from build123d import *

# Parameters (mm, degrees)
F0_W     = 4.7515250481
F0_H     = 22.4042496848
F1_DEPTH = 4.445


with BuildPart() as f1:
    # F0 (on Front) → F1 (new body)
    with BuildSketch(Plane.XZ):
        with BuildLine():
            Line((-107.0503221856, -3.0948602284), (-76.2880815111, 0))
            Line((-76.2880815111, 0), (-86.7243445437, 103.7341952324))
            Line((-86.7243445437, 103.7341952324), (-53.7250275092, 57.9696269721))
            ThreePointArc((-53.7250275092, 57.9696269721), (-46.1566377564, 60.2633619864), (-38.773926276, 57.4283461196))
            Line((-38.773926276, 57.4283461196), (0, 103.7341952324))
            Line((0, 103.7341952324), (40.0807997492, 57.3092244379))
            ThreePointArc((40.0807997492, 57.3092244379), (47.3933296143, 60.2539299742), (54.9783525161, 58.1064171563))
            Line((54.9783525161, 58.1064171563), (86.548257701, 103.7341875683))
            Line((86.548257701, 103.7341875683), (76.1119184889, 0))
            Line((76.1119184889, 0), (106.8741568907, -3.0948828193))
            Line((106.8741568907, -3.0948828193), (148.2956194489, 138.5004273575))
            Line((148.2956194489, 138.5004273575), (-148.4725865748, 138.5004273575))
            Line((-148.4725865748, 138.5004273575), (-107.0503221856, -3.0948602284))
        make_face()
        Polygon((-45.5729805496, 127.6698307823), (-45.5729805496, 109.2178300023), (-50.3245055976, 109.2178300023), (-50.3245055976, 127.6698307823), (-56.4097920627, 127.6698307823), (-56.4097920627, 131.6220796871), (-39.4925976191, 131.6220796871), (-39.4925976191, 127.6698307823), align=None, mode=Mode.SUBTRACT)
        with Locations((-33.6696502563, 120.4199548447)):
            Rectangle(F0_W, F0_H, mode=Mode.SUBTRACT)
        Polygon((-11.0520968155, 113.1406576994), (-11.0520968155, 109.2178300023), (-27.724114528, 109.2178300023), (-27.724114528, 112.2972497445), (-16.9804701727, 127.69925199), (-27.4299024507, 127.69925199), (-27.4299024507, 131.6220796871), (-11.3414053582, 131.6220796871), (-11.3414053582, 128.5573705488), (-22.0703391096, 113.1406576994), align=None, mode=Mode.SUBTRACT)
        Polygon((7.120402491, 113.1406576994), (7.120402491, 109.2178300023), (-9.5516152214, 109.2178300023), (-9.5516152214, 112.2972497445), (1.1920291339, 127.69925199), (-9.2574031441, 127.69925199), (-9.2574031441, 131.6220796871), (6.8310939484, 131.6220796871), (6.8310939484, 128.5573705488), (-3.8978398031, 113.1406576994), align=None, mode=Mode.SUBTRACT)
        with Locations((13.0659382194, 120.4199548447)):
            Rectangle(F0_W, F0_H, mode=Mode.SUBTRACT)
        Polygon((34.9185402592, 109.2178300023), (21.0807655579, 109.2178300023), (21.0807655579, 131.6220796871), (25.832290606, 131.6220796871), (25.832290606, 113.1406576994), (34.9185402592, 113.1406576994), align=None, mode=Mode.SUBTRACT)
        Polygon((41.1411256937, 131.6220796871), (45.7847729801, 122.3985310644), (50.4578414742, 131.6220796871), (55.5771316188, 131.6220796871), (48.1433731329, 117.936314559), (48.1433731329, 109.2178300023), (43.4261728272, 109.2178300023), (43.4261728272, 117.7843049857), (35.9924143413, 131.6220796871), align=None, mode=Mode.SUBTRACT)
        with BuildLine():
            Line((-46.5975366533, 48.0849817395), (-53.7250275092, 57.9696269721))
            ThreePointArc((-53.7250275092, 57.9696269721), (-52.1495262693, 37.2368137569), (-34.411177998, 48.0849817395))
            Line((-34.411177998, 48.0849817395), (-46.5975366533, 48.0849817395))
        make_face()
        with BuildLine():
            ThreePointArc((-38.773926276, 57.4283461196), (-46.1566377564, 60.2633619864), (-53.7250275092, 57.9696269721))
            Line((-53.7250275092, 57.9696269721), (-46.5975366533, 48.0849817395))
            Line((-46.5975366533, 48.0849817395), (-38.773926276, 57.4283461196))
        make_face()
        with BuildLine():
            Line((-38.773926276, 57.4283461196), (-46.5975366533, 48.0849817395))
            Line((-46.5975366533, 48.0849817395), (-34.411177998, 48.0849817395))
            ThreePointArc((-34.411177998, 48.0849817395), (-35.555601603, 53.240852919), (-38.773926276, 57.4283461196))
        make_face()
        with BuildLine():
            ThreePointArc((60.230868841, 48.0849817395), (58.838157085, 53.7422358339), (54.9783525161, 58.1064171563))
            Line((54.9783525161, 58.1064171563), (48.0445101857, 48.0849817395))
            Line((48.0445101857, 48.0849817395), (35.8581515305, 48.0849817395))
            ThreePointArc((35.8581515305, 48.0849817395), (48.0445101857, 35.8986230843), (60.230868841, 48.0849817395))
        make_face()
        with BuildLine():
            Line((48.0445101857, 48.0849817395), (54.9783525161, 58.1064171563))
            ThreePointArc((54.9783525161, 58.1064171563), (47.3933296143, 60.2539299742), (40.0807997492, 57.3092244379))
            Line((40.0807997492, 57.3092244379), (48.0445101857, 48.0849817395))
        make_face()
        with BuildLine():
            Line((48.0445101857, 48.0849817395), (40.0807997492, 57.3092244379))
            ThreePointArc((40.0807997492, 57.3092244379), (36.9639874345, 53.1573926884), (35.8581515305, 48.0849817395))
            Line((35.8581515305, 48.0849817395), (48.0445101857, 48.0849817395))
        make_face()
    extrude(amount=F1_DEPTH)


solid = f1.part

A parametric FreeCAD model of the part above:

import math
import FreeCAD as App
import Part
import Sketcher
Q = App.Units.Quantity


def add_polygon(sketch, points):
    """Adds a closed chain of lines whose ends are joined by coincident constraints."""
    first, n = sketch.GeometryCount, len(points)
    for a, b in zip(points, points[1:] + points[:1]):
        sketch.addGeometry(Part.LineSegment(App.Vector(*a, 0), App.Vector(*b, 0)), False)
    for i in range(n):
        sketch.addConstraint(Sketcher.Constraint("Coincident", first + i, 2, first + (i + 1) % n, 1))

doc = App.newDocument("Part")
body = doc.addObject("PartDesign::Body", "Body")

# Sketch on XZ plane
sketch1 = doc.addObject("Sketcher::SketchObject", "Sketch")
body.addObject(sketch1)
sketch1.AttachmentSupport = (doc.XZ_Plane, [""])
sketch1.MapMode = "FlatFace"
sketch1.addGeometry(Part.LineSegment(App.Vector(-107.050322, -3.09486, 0), App.Vector(-76.288082, 0, 0)), False)  # 0
sketch1.addGeometry(Part.LineSegment(App.Vector(-76.288082, 0, 0), App.Vector(-86.724345, 103.734195, 0)), False)  # 1
sketch1.addGeometry(Part.LineSegment(App.Vector(-86.724345, 103.734195, 0), App.Vector(-53.725028, 57.969627, 0)), False)  # 2
sketch1.addGeometry(Part.ArcOfCircle(Part.Circle(App.Vector(-46.597537, 48.084982, 0), App.Vector(0, 0, 1), 12.186359), math.radians(125.794127), math.radians(360)), False)  # 3
sketch1.addGeometry(Part.ArcOfCircle(Part.Circle(App.Vector(-46.597537, 48.084982, 0), App.Vector(0, 0, 1), 12.186359), math.radians(0), math.radians(50.059079)), False)  # 4
sketch1.addGeometry(Part.LineSegment(App.Vector(-38.773926, 57.428346, 0), App.Vector(0, 103.734195, 0)), False)  # 5
sketch1.addGeometry(Part.LineSegment(App.Vector(0, 103.734195, 0), App.Vector(40.0808, 57.309224, 0)), False)  # 6
sketch1.addGeometry(Part.ArcOfCircle(Part.Circle(App.Vector(48.04451, 48.084982, 0), App.Vector(0, 0, 1), 12.186359), math.radians(130.805544), math.radians(180)), False)  # 7
sketch1.addGeometry(Part.ArcOfCircle(Part.Circle(App.Vector(48.04451, 48.084982, 0), App.Vector(0, 0, 1), 12.186359), math.radians(180), math.radians(360)), False)  # 8
sketch1.addGeometry(Part.ArcOfCircle(Part.Circle(App.Vector(48.04451, 48.084982, 0), App.Vector(0, 0, 1), 12.186359), math.radians(0), math.radians(55.320597)), False)  # 9
sketch1.addGeometry(Part.LineSegment(App.Vector(54.978353, 58.106417, 0), App.Vector(86.548258, 103.734188, 0)), False)  # 10
sketch1.addGeometry(Part.LineSegment(App.Vector(86.548258, 103.734188, 0), App.Vector(76.111918, 0, 0)), False)  # 11
sketch1.addGeometry(Part.LineSegment(App.Vector(76.111918, 0, 0), App.Vector(106.874157, -3.094883, 0)), False)  # 12
sketch1.addGeometry(Part.LineSegment(App.Vector(106.874157, -3.094883, 0), App.Vector(148.295619, 138.500427, 0)), False)  # 13
sketch1.addGeometry(Part.LineSegment(App.Vector(148.295619, 138.500427, 0), App.Vector(-148.472587, 138.500427, 0)), False)  # 14
sketch1.addGeometry(Part.LineSegment(App.Vector(-148.472587, 138.500427, 0), App.Vector(-107.050322, -3.09486, 0)), False)  # 15
add_polygon(sketch1, [(-39.492598, 127.669831), (-45.572981, 127.669831), (-45.572981, 109.21783), (-50.324506, 109.21783), (-50.324506, 127.669831), (-56.409792, 127.669831), (-56.409792, 131.62208), (-39.492598, 131.62208)])  # lines 16-23
add_polygon(sketch1, [(-31.293888, 109.21783), (-36.045413, 109.21783), (-36.045413, 131.62208), (-31.293888, 131.62208)])  # lines 24-27
add_polygon(sketch1, [(-22.070339, 113.140658), (-11.052097, 113.140658), (-11.052097, 109.21783), (-27.724115, 109.21783), (-27.724115, 112.29725), (-16.98047, 127.699252), (-27.429902, 127.699252), (-27.429902, 131.62208), (-11.341405, 131.62208), (-11.341405, 128.557371)])  # lines 28-37
add_polygon(sketch1, [(-3.89784, 113.140658), (7.120402, 113.140658), (7.120402, 109.21783), (-9.551615, 109.21783), (-9.551615, 112.29725), (1.192029, 127.699252), (-9.257403, 127.699252), (-9.257403, 131.62208), (6.831094, 131.62208), (6.831094, 128.557371)])  # lines 38-47
add_polygon(sketch1, [(15.441701, 109.21783), (10.690176, 109.21783), (10.690176, 131.62208), (15.441701, 131.62208)])  # lines 48-51
add_polygon(sketch1, [(34.91854, 113.140658), (34.91854, 109.21783), (21.080766, 109.21783), (21.080766, 131.62208), (25.832291, 131.62208), (25.832291, 113.140658)])  # lines 52-57
add_polygon(sketch1, [(35.992414, 131.62208), (41.141126, 131.62208), (45.784773, 122.398531), (50.457841, 131.62208), (55.577132, 131.62208), (48.143373, 117.936315), (48.143373, 109.21783), (43.426173, 109.21783), (43.426173, 117.784305)])  # lines 58-66
sketch1.addConstraint([
    Sketcher.Constraint("Coincident", 0, 2, 1, 1),
    Sketcher.Constraint("Coincident", 1, 2, 2, 1),
    Sketcher.Constraint("Coincident", 2, 2, 3, 1),
    Sketcher.Constraint("Tangent", 3, 2, 4, 1),
    Sketcher.Constraint("Coincident", 4, 2, 5, 1),
    Sketcher.Constraint("Coincident", 5, 2, 6, 1),
    Sketcher.Constraint("Coincident", 6, 2, 7, 1),
    Sketcher.Constraint("Tangent", 7, 2, 8, 1),
    Sketcher.Constraint("Tangent", 8, 2, 9, 1),
    Sketcher.Constraint("Coincident", 9, 2, 10, 1),
    Sketcher.Constraint("Coincident", 10, 2, 11, 1),
    Sketcher.Constraint("Coincident", 11, 2, 12, 1),
    Sketcher.Constraint("Coincident", 12, 2, 13, 1),
    Sketcher.Constraint("Coincident", 13, 2, 14, 1),
    Sketcher.Constraint("Coincident", 14, 2, 15, 1),
    Sketcher.Constraint("Coincident", 15, 2, 0, 1),
    Sketcher.Constraint("Horizontal", 14),
    Sketcher.Constraint("Horizontal", 16),
    Sketcher.Constraint("Vertical", 17),
    Sketcher.Constraint("Horizontal", 18),
    Sketcher.Constraint("Vertical", 19),
    Sketcher.Constraint("Horizontal", 20),
    Sketcher.Constraint("Vertical", 21),
    Sketcher.Constraint("Horizontal", 22),
    Sketcher.Constraint("Vertical", 23),
    Sketcher.Constraint("Horizontal", 24),
    Sketcher.Constraint("Vertical", 25),
    Sketcher.Constraint("Horizontal", 26),
    Sketcher.Constraint("Vertical", 27),
    Sketcher.Constraint("Horizontal", 28),
    Sketcher.Constraint("Vertical", 29),
    Sketcher.Constraint("Horizontal", 30),
    Sketcher.Constraint("Vertical", 31),
    Sketcher.Constraint("Horizontal", 33),
    Sketcher.Constraint("Vertical", 34),
    Sketcher.Constraint("Horizontal", 35),
    Sketcher.Constraint("Vertical", 36),
    Sketcher.Constraint("Horizontal", 38),
    Sketcher.Constraint("Vertical", 39),
    Sketcher.Constraint("Horizontal", 40),
    Sketcher.Constraint("Vertical", 41),
    Sketcher.Constraint("Horizontal", 43),
    Sketcher.Constraint("Vertical", 44),
    Sketcher.Constraint("Horizontal", 45),
    Sketcher.Constraint("Vertical", 46),
    Sketcher.Constraint("Horizontal", 48),
    Sketcher.Constraint("Vertical", 49),
    Sketcher.Constraint("Horizontal", 50),
    Sketcher.Constraint("Vertical", 51),
    Sketcher.Constraint("Vertical", 52),
    Sketcher.Constraint("Horizontal", 53),
    Sketcher.Constraint("Vertical", 54),
    Sketcher.Constraint("Horizontal", 55),
    Sketcher.Constraint("Vertical", 56),
    Sketcher.Constraint("Horizontal", 57),
    Sketcher.Constraint("Horizontal", 58),
    Sketcher.Constraint("Horizontal", 61),
    Sketcher.Constraint("Vertical", 63),
    Sketcher.Constraint("Horizontal", 64),
    Sketcher.Constraint("Vertical", 65),
    Sketcher.Constraint("Equal", 3, 4),
    Sketcher.Constraint("Equal", 4, 7),
    Sketcher.Constraint("Equal", 7, 8),
    Sketcher.Constraint("Equal", 8, 9),
    Sketcher.Constraint("PointOnObject", 0, 2, -1),
    Sketcher.Constraint("PointOnObject", 5, 2, -2),
    Sketcher.Constraint("PointOnObject", 11, 2, -1),
    Sketcher.Constraint("Perpendicular", 0, 1),
    Sketcher.Constraint("Perpendicular", 11, 12),
    Sketcher.Constraint("Parallel", 32, 42),
    Sketcher.Constraint("Parallel", 37, 47),
    Sketcher.Constraint("Horizontal", 4, 3, 7, 3),
    Sketcher.Constraint("Horizontal", 9, 3, 3, 2),
    Sketcher.Constraint("Horizontal", 1, 2, 5, 2),
    Sketcher.Constraint("Horizontal", 3, 2, 7, 2),
    Sketcher.Constraint("Horizontal", 7, 2, 8, 2),
    Sketcher.Constraint("Horizontal", 16, 2, 19, 2),
    Sketcher.Constraint("Horizontal", 18, 2, 24, 2),
    Sketcher.Constraint("Horizontal", 22, 2, 25, 2),
    Sketcher.Constraint("Horizontal", 27, 2, 29, 2),
    Sketcher.Constraint("Horizontal", 26, 2, 34, 2),
    Sketcher.Constraint("Horizontal", 37, 2, 38, 2),
    Sketcher.Constraint("Horizontal", 30, 2, 39, 2),
    Sketcher.Constraint("Horizontal", 31, 2, 41, 2),
    Sketcher.Constraint("Horizontal", 33, 2, 42, 2),
    Sketcher.Constraint("Horizontal", 35, 2, 44, 2),
    Sketcher.Constraint("Horizontal", 36, 2, 46, 2),
    Sketcher.Constraint("Horizontal", 40, 2, 48, 2),
    Sketcher.Constraint("Horizontal", 45, 2, 49, 2),
    Sketcher.Constraint("Horizontal", 51, 2, 52, 2),
    Sketcher.Constraint("Horizontal", 50, 2, 54, 2),
    Sketcher.Constraint("Horizontal", 47, 2, 56, 2),
    Sketcher.Constraint("Horizontal", 55, 2, 58, 2),
    Sketcher.Constraint("Horizontal", 58, 2, 60, 2),
    Sketcher.Constraint("Horizontal", 53, 2, 63, 2),
    Sketcher.Constraint("Equal", 18, 24),
    Sketcher.Constraint("Equal", 28, 38),
    Sketcher.Constraint("Equal", 30, 40),
    Sketcher.Constraint("Equal", 33, 43),
    Sketcher.Constraint("Equal", 26, 48),
    Sketcher.Constraint("Equal", 50, 55),
    Sketcher.Constraint("Equal", 29, 34),
    Sketcher.Constraint("Equal", 1, 11),
    Sketcher.Constraint("Equal", 0, 12),
    Sketcher.Constraint("Radius", 3, 12.186359),
    Sketcher.Constraint("DistanceX", 64, 2, 64, 1, 4.7172),
    Sketcher.Constraint("DistanceY", 17, 2, 17, 1, 18.452001),
    Sketcher.Constraint("DistanceX", 57, 1, 57, 2, 9.08625),
    Sketcher.Constraint("DistanceX", 58, 1, 58, 2, 5.148711),
    Sketcher.Constraint("DistanceX", 61, 1, 61, 2, 5.11929),
    Sketcher.Constraint("DistanceY", 21, 1, 21, 2, 3.952249),
    Sketcher.Constraint("DistanceY", 31, 1, 31, 2, 3.07942),
    Sketcher.Constraint("DistanceY", 36, 2, 36, 1, 3.064709),
    Sketcher.Constraint("DistanceY", 56, 2, 56, 1, 18.481422),
    Sketcher.Constraint("DistanceX", -1, 1, 6, 2, 40.0808),
    Sketcher.Constraint("DistanceX", -1, 1, 50, 2, 15.441701),
    Sketcher.Constraint("Distance", 0, 30.917529),
    Sketcher.Constraint("Distance", 2, 56.42119),
    Sketcher.Constraint("Distance", 5, 60.39577),
    Sketcher.Constraint("Distance", 66, 15.708112),
    Sketcher.Constraint("DistanceX", 14, 2, 14, 1, 296.768206),
    Sketcher.Constraint("DistanceX", 16, 2, 16, 1, 6.080383),
    Sketcher.Constraint("DistanceX", 18, 2, 18, 1, 4.751525),
    Sketcher.Constraint("DistanceX", 20, 2, 20, 1, 6.085286),
    Sketcher.Constraint("DistanceX", 28, 1, 28, 2, 11.018242),
    Sketcher.Constraint("DistanceX", 30, 2, 30, 1, 16.672018),
    Sketcher.Constraint("DistanceX", 33, 2, 33, 1, 10.449432),
    Sketcher.Constraint("DistanceX", 35, 1, 35, 2, 16.088497),
    Sketcher.Constraint("DistanceY", 63, 2, 63, 1, 8.718485),
    Sketcher.Constraint("DistanceY", 65, 1, 65, 2, 8.566475),
    Sketcher.Constraint("DistanceY", -1, 1, 3, 3, 48.084982),
    Sketcher.Constraint("DistanceX", -1, 1, 7, 3, 48.04451),
    Sketcher.Constraint("DistanceX", 0, 2, -1, 1, 76.288082),
    Sketcher.Constraint("DistanceX", -1, 1, 11, 2, 76.111918),
    Sketcher.Constraint("DistanceX", -1, 1, 13, 2, 148.295619),
    Sketcher.Constraint("DistanceY", 15, 2, -1, 1, 3.09486),
    Sketcher.Constraint("DistanceX", 16, 2, -1, 1, 45.572981),
    Sketcher.Constraint("DistanceY", -1, 1, 16, 2, 127.669831),
    Sketcher.Constraint("DistanceX", 32, 2, -1, 1, 16.98047),
    Sketcher.Constraint("DistanceX", 37, 2, -1, 1, 22.070339),
    Sketcher.Constraint("DistanceX", -1, 1, 42, 2, 1.192029),
    Sketcher.Constraint("DistanceX", -1, 1, 52, 2, 34.91854),
    Sketcher.Constraint("DistanceY", -1, 1, 59, 2, 122.398531),
    Sketcher.Constraint("DistanceX", -1, 1, 60, 2, 50.457841),
    Sketcher.Constraint("Distance", 10, 55.484704),
    Sketcher.Constraint("Distance", 13, 147.529554),
    Sketcher.Constraint("Distance", 59, 10.326534),
    Sketcher.Constraint("Distance", 60, 10.339798),
    Sketcher.Constraint("DistanceX", 2, 2, -1, 1, 53.725028),
    Sketcher.Constraint("DistanceX", 4, 2, -1, 1, 38.773926),
    Sketcher.Constraint("DistanceX", -1, 1, 9, 2, 54.978353),
    Sketcher.Constraint("DistanceX", 24, 2, -1, 1, 36.045413),
])
pad1 = doc.addObject("PartDesign::Pad", "Pad")
body.addObject(pad1)
pad1.Profile = sketch1
pad1.Length = Q("0.175 in")

doc.recompute()
